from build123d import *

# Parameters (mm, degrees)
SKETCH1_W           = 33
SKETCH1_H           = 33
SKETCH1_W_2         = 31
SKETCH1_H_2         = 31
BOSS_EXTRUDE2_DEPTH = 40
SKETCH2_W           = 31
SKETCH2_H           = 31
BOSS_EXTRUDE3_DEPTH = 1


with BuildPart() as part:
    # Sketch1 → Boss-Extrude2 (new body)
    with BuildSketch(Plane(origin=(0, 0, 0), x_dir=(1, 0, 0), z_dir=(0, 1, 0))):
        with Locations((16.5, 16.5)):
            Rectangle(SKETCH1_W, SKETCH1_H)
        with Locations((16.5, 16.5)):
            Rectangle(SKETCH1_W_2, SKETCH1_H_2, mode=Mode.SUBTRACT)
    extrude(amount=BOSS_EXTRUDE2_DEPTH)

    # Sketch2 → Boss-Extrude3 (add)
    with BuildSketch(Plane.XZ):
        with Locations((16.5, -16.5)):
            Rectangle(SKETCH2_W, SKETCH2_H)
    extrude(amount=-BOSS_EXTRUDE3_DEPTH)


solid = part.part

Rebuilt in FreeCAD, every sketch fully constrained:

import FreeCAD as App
import Part
import Sketcher

V = App.Vector

doc = App.newDocument("Part")
body = doc.addObject("PartDesign::Body", "Body")

# Sketch on XZ plane
sketch1 = body.newObject("Sketcher::SketchObject", "Sketch")
sketch1.AttachmentSupport = (doc.getObject("XZ_Plane"), [""])
sketch1.MapMode = "FlatFace"
sketch1.addGeometry(Part.LineSegment(V(0, -33, 0), V(0, 0, 0)), False)
sketch1.addGeometry(Part.LineSegment(V(0, 0, 0), V(33, 0, 0)), False)
sketch1.addGeometry(Part.LineSegment(V(33, 0, 0), V(33, -33, 0)), False)
sketch1.addGeometry(Part.LineSegment(V(33, -33, 0), V(0, -33, 0)), False)
sketch1.addGeometry(Part.LineSegment(V(32, -1, 0), V(1, -1, 0)), False)
sketch1.addGeometry(Part.LineSegment(V(1, -1, 0), V(1, -32, 0)), False)
sketch1.addGeometry(Part.LineSegment(V(1, -32, 0), V(32, -32, 0)), False)
sketch1.addGeometry(Part.LineSegment(V(32, -32, 0), V(32, -1, 0)), False)
sketch1.addConstraint(Sketcher.Constraint("Coincident", 0, 2, 1, 1))
sketch1.addConstraint(Sketcher.Constraint("Coincident", 1, 2, 2, 1))
sketch1.addConstraint(Sketcher.Constraint("Coincident", 2, 2, 3, 1))
sketch1.addConstraint(Sketcher.Constraint("Coincident", 3, 2, 0, 1))
sketch1.addConstraint(Sketcher.Constraint("Coincident", 4, 2, 5, 1))
sketch1.addConstraint(Sketcher.Constraint("Coincident", 5, 2, 6, 1))
sketch1.addConstraint(Sketcher.Constraint("Coincident", 6, 2, 7, 1))
sketch1.addConstraint(Sketcher.Constraint("Coincident", 7, 2, 4, 1))
sketch1.addConstraint(Sketcher.Constraint("Vertical", 0))
sketch1.addConstraint(Sketcher.Constraint("Horizontal", 1))
sketch1.addConstraint(Sketcher.Constraint("Vertical", 2))
sketch1.addConstraint(Sketcher.Constraint("Horizontal", 3))
sketch1.addConstraint(Sketcher.Constraint("Horizontal", 4))
sketch1.addConstraint(Sketcher.Constraint("Vertical", 5))
sketch1.addConstraint(Sketcher.Constraint("Horizontal", 6))
sketch1.addConstraint(Sketcher.Constraint("Vertical", 7))
sketch1.addConstraint(Sketcher.Constraint("Coincident", 0, 2, -1, 1))
sketch1.addConstraint(Sketcher.Constraint("Equal", 3, 0))
sketch1.addConstraint(Sketcher.Constraint("Equal", 6, 5))
sketch1.addConstraint(Sketcher.Constraint("DistanceX", 1, 1, 1, 2, 33.0))
sketch1.addConstraint(Sketcher.Constraint("DistanceX", 4, 2, 4, 1, 31.0))
sketch1.addConstraint(Sketcher.Constraint("DistanceX", -1, 1, 4, 2, 1.0))
sketch1.addConstraint(Sketcher.Constraint("DistanceY", 4, 2, -1, 1, 1.0))
pad1 = body.newObject("PartDesign::Pad", "Pad")
pad1.Profile = sketch1
pad1.Length = 40
pad1.Reversed = True

# Sketch on XZ plane
sketch2 = body.newObject("Sketcher::SketchObject", "Sketch001")
sketch2.AttachmentSupport = (doc.getObject("XZ_Plane"), [""])
sketch2.MapMode = "FlatFace"
sketch2.addGeometry(Part.LineSegment(V(1, -1, 0), V(1, -32, 0)), False)
sketch2.addGeometry(Part.LineSegment(V(1, -32, 0), V(32, -32, 0)), False)
sketch2.addGeometry(Part.LineSegment(V(32, -32, 0), V(32, -1, 0)), False)
sketch2.addGeometry(Part.LineSegment(V(32, -1, 0), V(1, -1, 0)), False)
sketch2.addConstraint(Sketcher.Constraint("Coincident", 0, 2, 1, 1))
sketch2.addConstraint(Sketcher.Constraint("Coincident", 1, 2, 2, 1))
sketch2.addConstraint(Sketcher.Constraint("Coincident", 2, 2, 3, 1))
sketch2.addConstraint(Sketcher.Constraint("Coincident", 3, 2, 0, 1))
sketch2.addConstraint(Sketcher.Constraint("Vertical", 0))
sketch2.addConstraint(Sketcher.Constraint("Horizontal", 1))
sketch2.addConstraint(Sketcher.Constraint("Vertical", 2))
sketch2.addConstraint(Sketcher.Constraint("Horizontal", 3))
sketch2.addConstraint(Sketcher.Constraint("Equal", 3, 0))
sketch2.addConstraint(Sketcher.Constraint("DistanceX", 1, 1, 1, 2, 31.0))
sketch2.addConstraint(Sketcher.Constraint("DistanceX", -1, 1, 0, 2, 1.0))
sketch2.addConstraint(Sketcher.Constraint("DistanceY", 0, 2, -1, 1, 32.0))
pad2 = body.newObject("PartDesign::Pad", "Pad001")
pad2.Profile = sketch2
pad2.Length = 1
pad2.Reversed = True

doc.recompute()
